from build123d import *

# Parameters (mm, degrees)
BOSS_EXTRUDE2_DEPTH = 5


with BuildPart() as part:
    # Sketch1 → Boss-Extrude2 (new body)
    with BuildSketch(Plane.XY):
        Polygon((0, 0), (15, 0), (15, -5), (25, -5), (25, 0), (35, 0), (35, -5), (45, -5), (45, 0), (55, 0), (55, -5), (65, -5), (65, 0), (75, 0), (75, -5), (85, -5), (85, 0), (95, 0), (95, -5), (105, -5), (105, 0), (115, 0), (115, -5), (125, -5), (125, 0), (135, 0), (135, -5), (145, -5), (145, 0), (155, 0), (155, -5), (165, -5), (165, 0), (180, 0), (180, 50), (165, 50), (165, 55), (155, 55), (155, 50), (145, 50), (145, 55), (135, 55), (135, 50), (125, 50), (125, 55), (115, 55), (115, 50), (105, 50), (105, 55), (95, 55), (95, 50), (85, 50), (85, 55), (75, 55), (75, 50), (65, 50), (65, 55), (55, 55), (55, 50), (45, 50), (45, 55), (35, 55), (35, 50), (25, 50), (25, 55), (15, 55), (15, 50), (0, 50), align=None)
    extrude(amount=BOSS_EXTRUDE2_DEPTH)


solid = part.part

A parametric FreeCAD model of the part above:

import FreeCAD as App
import Part
import Sketcher
from FreeCAD import Vector

doc = App.newDocument("Part")
body = doc.addObject("PartDesign::Body", "Body")

sketch1 = doc.addObject("Sketcher::SketchObject", "Sketch")
body.addObject(sketch1)
sketch1.AttachmentSupport = (doc.XY_Plane, [""])
sketch1.MapMode = "FlatFace"
sketch1.addGeometry(Part.LineSegment(Vector(0, 0, 0), Vector(15, 0, 0)), False)
sketch1.addGeometry(Part.LineSegment(Vector(15, 0, 0), Vector(15, -5, 0)), False)
sketch1.addGeometry(Part.LineSegment(Vector(15, -5, 0), Vector(25, -5, 0)), False)
sketch1.addGeometry(Part.LineSegment(Vector(25, -5, 0), Vector(25, 0, 0)), False)
sketch1.addGeometry(Part.LineSegment(Vector(25, 0, 0), Vector(35, 0, 0)), False)
sketch1.addGeometry(Part.LineSegment(Vector(35, 0, 0), Vector(35, -5, 0)), False)
sketch1.addGeometry(Part.LineSegment(Vector(35, -5, 0), Vector(45, -5, 0)), False)
sketch1.addGeometry(Part.LineSegment(Vector(45, -5, 0), Vector(45, 0, 0)), False)
sketch1.addGeometry(Part.LineSegment(Vector(45, 0, 0), Vector(55, 0, 0)), False)
sketch1.addGeometry(Part.LineSegment(Vector(55, 0, 0), Vector(55, -5, 0)), False)
sketch1.addGeometry(Part.LineSegment(Vector(55, -5, 0), Vector(65, -5, 0)), False)
sketch1.addGeometry(Part.LineSegment(Vector(65, -5, 0), Vector(65, 0, 0)), False)
sketch1.addGeometry(Part.LineSegment(Vector(65, 0, 0), Vector(75, 0, 0)), False)
sketch1.addGeometry(Part.LineSegment(Vector(75, 0, 0), Vector(75, -5, 0)), False)
sketch1.addGeometry(Part.LineSegment(Vector(75, -5, 0), Vector(85, -5, 0)), False)
sketch1.addGeometry(Part.LineSegment(Vector(85, -5, 0), Vector(85, 0, 0)), False)
sketch1.addGeometry(Part.LineSegment(Vector(85, 0, 0), Vector(95, 0, 0)), False)
sketch1.addGeometry(Part.LineSegment(Vector(95, 0, 0), Vector(95, -5, 0)), False)
sketch1.addGeometry(Part.LineSegment(Vector(95, -5, 0), Vector(105, -5, 0)), False)
sketch1.addGeometry(Part.LineSegment(Vector(105, -5, 0), Vector(105, 0, 0)), False)
sketch1.addGeometry(Part.LineSegment(Vector(105, 0, 0), Vector(115, 0, 0)), False)
sketch1.addGeometry(Part.LineSegment(Vector(115, 0, 0), Vector(115, -5, 0)), False)
sketch1.addGeometry(Part.LineSegment(Vector(115, -5, 0), Vector(125, -5, 0)), False)
sketch1.addGeometry(Part.LineSegment(Vector(125, -5, 0), Vector(125, 0, 0)), False)
sketch1.addGeometry(Part.LineSegment(Vector(125, 0, 0), Vector(135, 0, 0)), False)
sketch1.addGeometry(Part.LineSegment(Vector(135, 0, 0), Vector(135, -5, 0)), False)
sketch1.addGeometry(Part.LineSegment(Vector(135, -5, 0), Vector(145, -5, 0)), False)
sketch1.addGeometry(Part.LineSegment(Vector(145, -5, 0), Vector(145, 0, 0)), False)
sketch1.addGeometry(Part.LineSegment(Vector(145, 0, 0), Vector(155, 0, 0)), False)
sketch1.addGeometry(Part.LineSegment(Vector(155, 0, 0), Vector(155, -5, 0)), False)
sketch1.addGeometry(Part.LineSegment(Vector(155, -5, 0), Vector(165, -5, 0)), False)
sketch1.addGeometry(Part.LineSegment(Vector(165, -5, 0), Vector(165, 0, 0)), False)
sketch1.addGeometry(Part.LineSegment(Vector(165, 0, 0), Vector(180, 0, 0)), False)
sketch1.addGeometry(Part.LineSegment(Vector(180, 0, 0), Vector(180, 50, 0)), False)
sketch1.addGeometry(Part.LineSegment(Vector(180, 50, 0), Vector(165, 50, 0)), False)
sketch1.addGeometry(Part.LineSegment(Vector(165, 50, 0), Vector(165, 55, 0)), False)
sketch1.addGeometry(Part.LineSegment(Vector(165, 55, 0), Vector(155, 55, 0)), False)
sketch1.addGeometry(Part.LineSegment(Vector(155, 55, 0), Vector(155, 50, 0)), False)
sketch1.addGeometry(Part.LineSegment(Vector(155, 50, 0), Vector(145, 50, 0)), False)
sketch1.addGeometry(Part.LineSegment(Vector(145, 50, 0), Vector(145, 55, 0)), False)
sketch1.addGeometry(Part.LineSegment(Vector(145, 55, 0), Vector(135, 55, 0)), False)
sketch1.addGeometry(Part.LineSegment(Vector(135, 55, 0), Vector(135, 50, 0)), False)
sketch1.addGeometry(Part.LineSegment(Vector(135, 50, 0), Vector(125, 50, 0)), False)
sketch1.addGeometry(Part.LineSegment(Vector(125, 50, 0), Vector(125, 55, 0)), False)
sketch1.addGeometry(Part.LineSegment(Vector(125, 55, 0), Vector(115, 55, 0)), False)
sketch1.addGeometry(Part.LineSegment(Vector(115, 55, 0), Vector(115, 50, 0)), False)
sketch1.addGeometry(Part.LineSegment(Vector(115, 50, 0), Vector(105, 50, 0)), False)
sketch1.addGeometry(Part.LineSegment(Vector(105, 50, 0), Vector(105, 55, 0)), False)
sketch1.addGeometry(Part.LineSegment(Vector(105, 55, 0), Vector(95, 55, 0)), False)
sketch1.addGeometry(Part.LineSegment(Vector(95, 55, 0), Vector(95, 50, 0)), False)
sketch1.addGeometry(Part.LineSegment(Vector(95, 50, 0), Vector(85, 50, 0)), False)
sketch1.addGeometry(Part.LineSegment(Vector(85, 50, 0), Vector(85, 55, 0)), False)
sketch1.addGeometry(Part.LineSegment(Vector(85, 55, 0), Vector(75, 55, 0)), False)
sketch1.addGeometry(Part.LineSegment(Vector(75, 55, 0), Vector(75, 50, 0)), False)
sketch1.addGeometry(Part.LineSegment(Vector(75, 50, 0), Vector(65, 50, 0)), False)
sketch1.addGeometry(Part.LineSegment(Vector(65, 50, 0), Vector(65, 55, 0)), False)
sketch1.addGeometry(Part.LineSegment(Vector(65, 55, 0), Vector(55, 55, 0)), False)
sketch1.addGeometry(Part.LineSegment(Vector(55, 55, 0), Vector(55, 50, 0)), False)
sketch1.addGeometry(Part.LineSegment(Vector(55, 50, 0), Vector(45, 50, 0)), False)
sketch1.addGeometry(Part.LineSegment(Vector(45, 50, 0), Vector(45, 55, 0)), False)
sketch1.addGeometry(Part.LineSegment(Vector(45, 55, 0), Vector(35, 55, 0)), False)
sketch1.addGeometry(Part.LineSegment(Vector(35, 55, 0), Vector(35, 50, 0)), False)
sketch1.addGeometry(Part.LineSegment(Vector(35, 50, 0), Vector(25, 50, 0)), False)
sketch1.addGeometry(Part.LineSegment(Vector(25, 50, 0), Vector(25, 55, 0)), False)
sketch1.addGeometry(Part.LineSegment(Vector(25, 55, 0), Vector(15, 55, 0)), False)
sketch1.addGeometry(Part.LineSegment(Vector(15, 55, 0), Vector(15, 50, 0)), False)
sketch1.addGeometry(Part.LineSegment(Vector(15, 50, 0), Vector(0, 50, 0)), False)
sketch1.addGeometry(Part.LineSegment(Vector(0, 50, 0), Vector(0, 0, 0)), False)
sketch1.addConstraint(Sketcher.Constraint("Coincident", 0, 2, 1, 1))
sketch1.addConstraint(Sketcher.Constraint("Coincident", 1, 2, 2, 1))
sketch1.addConstraint(Sketcher.Constraint("Coincident", 2, 2, 3, 1))
sketch1.addConstraint(Sketcher.Constraint("Coincident", 3, 2, 4, 1))
sketch1.addConstraint(Sketcher.Constraint("Coincident", 4, 2, 5, 1))
sketch1.addConstraint(Sketcher.Constraint("Coincident", 5, 2, 6, 1))
sketch1.addConstraint(Sketcher.Constraint("Coincident", 6, 2, 7, 1))
sketch1.addConstraint(Sketcher.Constraint("Coincident", 7, 2, 8, 1))
sketch1.addConstraint(Sketcher.Constraint("Coincident", 8, 2, 9, 1))
sketch1.addConstraint(Sketcher.Constraint("Coincident", 9, 2, 10, 1))
sketch1.addConstraint(Sketcher.Constraint("Coincident", 10, 2, 11, 1))
sketch1.addConstraint(Sketcher.Constraint("Coincident", 11, 2, 12, 1))
sketch1.addConstraint(Sketcher.Constraint("Coincident", 12, 2, 13, 1))
sketch1.addConstraint(Sketcher.Constraint("Coincident", 13, 2, 14, 1))
sketch1.addConstraint(Sketcher.Constraint("Coincident", 14, 2, 15, 1))
sketch1.addConstraint(Sketcher.Constraint("Coincident", 15, 2, 16, 1))
sketch1.addConstraint(Sketcher.Constraint("Coincident", 16, 2, 17, 1))
sketch1.addConstraint(Sketcher.Constraint("Coincident", 17, 2, 18, 1))
sketch1.addConstraint(Sketcher.Constraint("Coincident", 18, 2, 19, 1))
sketch1.addConstraint(Sketcher.Constraint("Coincident", 19, 2, 20, 1))
sketch1.addConstraint(Sketcher.Constraint("Coincident", 20, 2, 21, 1))
sketch1.addConstraint(Sketcher.Constraint("Coincident", 21, 2, 22, 1))
sketch1.addConstraint(Sketcher.Constraint("Coincident", 22, 2, 23, 1))
sketch1.addConstraint(Sketcher.Constraint("Coincident", 23, 2, 24, 1))
sketch1.addConstraint(Sketcher.Constraint("Coincident", 24, 2, 25, 1))
sketch1.addConstraint(Sketcher.Constraint("Coincident", 25, 2, 26, 1))
sketch1.addConstraint(Sketcher.Constraint("Coincident", 26, 2, 27, 1))
sketch1.addConstraint(Sketcher.Constraint("Coincident", 27, 2, 28, 1))
sketch1.addConstraint(Sketcher.Constraint("Coincident", 28, 2, 29, 1))
sketch1.addConstraint(Sketcher.Constraint("Coincident", 29, 2, 30, 1))
sketch1.addConstraint(Sketcher.Constraint("Coincident", 30, 2, 31, 1))
sketch1.addConstraint(Sketcher.Constraint("Coincident", 31, 2, 32, 1))
sketch1.addConstraint(Sketcher.Constraint("Coincident", 32, 2, 33, 1))
sketch1.addConstraint(Sketcher.Constraint("Coincident", 33, 2, 34, 1))
sketch1.addConstraint(Sketcher.Constraint("Coincident", 34, 2, 35, 1))
sketch1.addConstraint(Sketcher.Constraint("Coincident", 35, 2, 36, 1))
sketch1.addConstraint(Sketcher.Constraint("Coincident", 36, 2, 37, 1))
sketch1.addConstraint(Sketcher.Constraint("Coincident", 37, 2, 38, 1))
sketch1.addConstraint(Sketcher.Constraint("Coincident", 38, 2, 39, 1))
sketch1.addConstraint(Sketcher.Constraint("Coincident", 39, 2, 40, 1))
sketch1.addConstraint(Sketcher.Constraint("Coincident", 40, 2, 41, 1))
sketch1.addConstraint(Sketcher.Constraint("Coincident", 41, 2, 42, 1))
sketch1.addConstraint(Sketcher.Constraint("Coincident", 42, 2, 43, 1))
sketch1.addConstraint(Sketcher.Constraint("Coincident", 43, 2, 44, 1))
sketch1.addConstraint(Sketcher.Constraint("Coincident", 44, 2, 45, 1))
sketch1.addConstraint(Sketcher.Constraint("Coincident", 45, 2, 46, 1))
sketch1.addConstraint(Sketcher.Constraint("Coincident", 46, 2, 47, 1))
sketch1.addConstraint(Sketcher.Constraint("Coincident", 47, 2, 48, 1))
sketch1.addConstraint(Sketcher.Constraint("Coincident", 48, 2, 49, 1))
sketch1.addConstraint(Sketcher.Constraint("Coincident", 49, 2, 50, 1))
sketch1.addConstraint(Sketcher.Constraint("Coincident", 50, 2, 51, 1))
sketch1.addConstraint(Sketcher.Constraint("Coincident", 51, 2, 52, 1))
sketch1.addConstraint(Sketcher.Constraint("Coincident", 52, 2, 53, 1))
sketch1.addConstraint(Sketcher.Constraint("Coincident", 53, 2, 54, 1))
sketch1.addConstraint(Sketcher.Constraint("Coincident", 54, 2, 55, 1))
sketch1.addConstraint(Sketcher.Constraint("Coincident", 55, 2, 56, 1))
sketch1.addConstraint(Sketcher.Constraint("Coincident", 56, 2, 57, 1))
sketch1.addConstraint(Sketcher.Constraint("Coincident", 57, 2, 58, 1))
sketch1.addConstraint(Sketcher.Constraint("Coincident", 58, 2, 59, 1))
sketch1.addConstraint(Sketcher.Constraint("Coincident", 59, 2, 60, 1))
sketch1.addConstraint(Sketcher.Constraint("Coincident", 60, 2, 61, 1))
sketch1.addConstraint(Sketcher.Constraint("Coincident", 61, 2, 62, 1))
sketch1.addConstraint(Sketcher.Constraint("Coincident", 62, 2, 63, 1))
sketch1.addConstraint(Sketcher.Constraint("Coincident", 63, 2, 64, 1))
sketch1.addConstraint(Sketcher.Constraint("Coincident", 64, 2, 65, 1))
sketch1.addConstraint(Sketcher.Constraint("Coincident", 65, 2, 66, 1))
sketch1.addConstraint(Sketcher.Constraint("Coincident", 66, 2, 67, 1))
sketch1.addConstraint(Sketcher.Constraint("Coincident", 67, 2, 0, 1))
sketch1.addConstraint(Sketcher.Constraint("Horizontal", 0))
sketch1.addConstraint(Sketcher.Constraint("Vertical", 1))
sketch1.addConstraint(Sketcher.Constraint("Horizontal", 2))
sketch1.addConstraint(Sketcher.Constraint("Vertical", 3))
sketch1.addConstraint(Sketcher.Constraint("Horizontal", 4))
sketch1.addConstraint(Sketcher.Constraint("Vertical", 5))
sketch1.addConstraint(Sketcher.Constraint("Horizontal", 6))
sketch1.addConstraint(Sketcher.Constraint("Vertical", 7))
sketch1.addConstraint(Sketcher.Constraint("Horizontal", 8))
sketch1.addConstraint(Sketcher.Constraint("Vertical", 9))
sketch1.addConstraint(Sketcher.Constraint("Horizontal", 10))
sketch1.addConstraint(Sketcher.Constraint("Vertical", 11))
sketch1.addConstraint(Sketcher.Constraint("Horizontal", 12))
sketch1.addConstraint(Sketcher.Constraint("Vertical", 13))
sketch1.addConstraint(Sketcher.Constraint("Horizontal", 14))
sketch1.addConstraint(Sketcher.Constraint("Vertical", 15))
sketch1.addConstraint(Sketcher.Constraint("Horizontal", 16))
sketch1.addConstraint(Sketcher.Constraint("Vertical", 17))
sketch1.addConstraint(Sketcher.Constraint("Horizontal", 18))
sketch1.addConstraint(Sketcher.Constraint("Vertical", 19))
sketch1.addConstraint(Sketcher.Constraint("Horizontal", 20))
sketch1.addConstraint(Sketcher.Constraint("Vertical", 21))
sketch1.addConstraint(Sketcher.Constraint("Horizontal", 22))
sketch1.addConstraint(Sketcher.Constraint("Vertical", 23))
sketch1.addConstraint(Sketcher.Constraint("Horizontal", 24))
sketch1.addConstraint(Sketcher.Constraint("Vertical", 25))
sketch1.addConstraint(Sketcher.Constraint("Horizontal", 26))
sketch1.addConstraint(Sketcher.Constraint("Vertical", 27))
sketch1.addConstraint(Sketcher.Constraint("Horizontal", 28))
sketch1.addConstraint(Sketcher.Constraint("Vertical", 29))
sketch1.addConstraint(Sketcher.Constraint("Horizontal", 30))
sketch1.addConstraint(Sketcher.Constraint("Vertical", 31))
sketch1.addConstraint(Sketcher.Constraint("Horizontal", 32))
sketch1.addConstraint(Sketcher.Constraint("Vertical", 33))
sketch1.addConstraint(Sketcher.Constraint("Horizontal", 34))
sketch1.addConstraint(Sketcher.Constraint("Vertical", 35))
sketch1.addConstraint(Sketcher.Constraint("Horizontal", 36))
sketch1.addConstraint(Sketcher.Constraint("Vertical", 37))
sketch1.addConstraint(Sketcher.Constraint("Horizontal", 38))
sketch1.addConstraint(Sketcher.Constraint("Vertical", 39))
sketch1.addConstraint(Sketcher.Constraint("Horizontal", 40))
sketch1.addConstraint(Sketcher.Constraint("Vertical", 41))
sketch1.addConstraint(Sketcher.Constraint("Horizontal", 42))
sketch1.addConstraint(Sketcher.Constraint("Vertical", 43))
sketch1.addConstraint(Sketcher.Constraint("Horizontal", 44))
sketch1.addConstraint(Sketcher.Constraint("Vertical", 45))
sketch1.addConstraint(Sketcher.Constraint("Horizontal", 46))
sketch1.addConstraint(Sketcher.Constraint("Vertical", 47))
sketch1.addConstraint(Sketcher.Constraint("Horizontal", 48))
sketch1.addConstraint(Sketcher.Constraint("Vertical", 49))
sketch1.addConstraint(Sketcher.Constraint("Horizontal", 50))
sketch1.addConstraint(Sketcher.Constraint("Vertical", 51))
sketch1.addConstraint(Sketcher.Constraint("Horizontal", 52))
sketch1.addConstraint(Sketcher.Constraint("Vertical", 53))
sketch1.addConstraint(Sketcher.Constraint("Horizontal", 54))
sketch1.addConstraint(Sketcher.Constraint("Vertical", 55))
sketch1.addConstraint(Sketcher.Constraint("Horizontal", 56))
sketch1.addConstraint(Sketcher.Constraint("Vertical", 57))
sketch1.addConstraint(Sketcher.Constraint("Horizontal", 58))
sketch1.addConstraint(Sketcher.Constraint("Vertical", 59))
sketch1.addConstraint(Sketcher.Constraint("Horizontal", 60))
sketch1.addConstraint(Sketcher.Constraint("Vertical", 61))
sketch1.addConstraint(Sketcher.Constraint("Horizontal", 62))
sketch1.addConstraint(Sketcher.Constraint("Vertical", 63))
sketch1.addConstraint(Sketcher.Constraint("Horizontal", 64))
sketch1.addConstraint(Sketcher.Constraint("Vertical", 65))
sketch1.addConstraint(Sketcher.Constraint("Horizontal", 66))
sketch1.addConstraint(Sketcher.Constraint("Vertical", 67))
sketch1.addConstraint(Sketcher.Constraint("Coincident", 67, 2, -1, 1))
sketch1.addConstraint(Sketcher.Constraint("PointOnObject", 3, 2, -1))
sketch1.addConstraint(Sketcher.Constraint("PointOnObject", 7, 2, -1))
sketch1.addConstraint(Sketcher.Constraint("PointOnObject", 11, 2, -1))
sketch1.addConstraint(Sketcher.Constraint("PointOnObject", 15, 2, -1))
sketch1.addConstraint(Sketcher.Constraint("PointOnObject", 19, 2, -1))
sketch1.addConstraint(Sketcher.Constraint("PointOnObject", 23, 2, -1))
sketch1.addConstraint(Sketcher.Constraint("PointOnObject", 27, 2, -1))
sketch1.addConstraint(Sketcher.Constraint("PointOnObject", 31, 2, -1))
sketch1.addConstraint(Sketcher.Constraint("Horizontal", 2, 2, 5, 2))
sketch1.addConstraint(Sketcher.Constraint("Horizontal", 6, 2, 9, 2))
sketch1.addConstraint(Sketcher.Constraint("Horizontal", 10, 2, 13, 2))
sketch1.addConstraint(Sketcher.Constraint("Horizontal", 14, 2, 17, 2))
sketch1.addConstraint(Sketcher.Constraint("Horizontal", 18, 2, 21, 2))
sketch1.addConstraint(Sketcher.Constraint("Horizontal", 22, 2, 25, 2))
sketch1.addConstraint(Sketcher.Constraint("Horizontal", 26, 2, 29, 2))
sketch1.addConstraint(Sketcher.Constraint("Horizontal", 34, 2, 37, 2))
sketch1.addConstraint(Sketcher.Constraint("Horizontal", 36, 2, 39, 2))
sketch1.addConstraint(Sketcher.Constraint("Horizontal", 38, 2, 41, 2))
sketch1.addConstraint(Sketcher.Constraint("Horizontal", 40, 2, 43, 2))
sketch1.addConstraint(Sketcher.Constraint("Horizontal", 42, 2, 45, 2))
sketch1.addConstraint(Sketcher.Constraint("Horizontal", 44, 2, 47, 2))
sketch1.addConstraint(Sketcher.Constraint("Horizontal", 46, 2, 49, 2))
sketch1.addConstraint(Sketcher.Constraint("Horizontal", 48, 2, 51, 2))
sketch1.addConstraint(Sketcher.Constraint("Horizontal", 50, 2, 53, 2))
sketch1.addConstraint(Sketcher.Constraint("Horizontal", 52, 2, 55, 2))
sketch1.addConstraint(Sketcher.Constraint("Horizontal", 54, 2, 57, 2))
sketch1.addConstraint(Sketcher.Constraint("Horizontal", 56, 2, 59, 2))
sketch1.addConstraint(Sketcher.Constraint("Horizontal", 58, 2, 61, 2))
sketch1.addConstraint(Sketcher.Constraint("Horizontal", 60, 2, 63, 2))
sketch1.addConstraint(Sketcher.Constraint("Horizontal", 62, 2, 65, 2))
sketch1.addConstraint(Sketcher.Constraint("Vertical", 31, 2, 34, 2))
sketch1.addConstraint(Sketcher.Constraint("Vertical", 29, 2, 36, 2))
sketch1.addConstraint(Sketcher.Constraint("Vertical", 27, 2, 38, 2))
sketch1.addConstraint(Sketcher.Constraint("Vertical", 25, 2, 40, 2))
sketch1.addConstraint(Sketcher.Constraint("Vertical", 23, 2, 42, 2))
sketch1.addConstraint(Sketcher.Constraint("Vertical", 21, 2, 44, 2))
sketch1.addConstraint(Sketcher.Constraint("Vertical", 19, 2, 46, 2))
sketch1.addConstraint(Sketcher.Constraint("Vertical", 17, 2, 48, 2))
sketch1.addConstraint(Sketcher.Constraint("Vertical", 15, 2, 50, 2))
sketch1.addConstraint(Sketcher.Constraint("Vertical", 13, 2, 52, 2))
sketch1.addConstraint(Sketcher.Constraint("Vertical", 11, 2, 54, 2))
sketch1.addConstraint(Sketcher.Constraint("Vertical", 9, 2, 56, 2))
sketch1.addConstraint(Sketcher.Constraint("Vertical", 7, 2, 58, 2))
sketch1.addConstraint(Sketcher.Constraint("Vertical", 5, 2, 60, 2))
sketch1.addConstraint(Sketcher.Constraint("Vertical", 3, 2, 62, 2))
sketch1.addConstraint(Sketcher.Constraint("Vertical", 1, 2, 64, 2))
sketch1.addConstraint(Sketcher.Constraint("Equal", 2, 4))
sketch1.addConstraint(Sketcher.Constraint("Equal", 4, 6))
sketch1.addConstraint(Sketcher.Constraint("Equal", 6, 8))
sketch1.addConstraint(Sketcher.Constraint("Equal", 8, 10))
sketch1.addConstraint(Sketcher.Constraint("Equal", 10, 12))
sketch1.addConstraint(Sketcher.Constraint("Equal", 12, 14))
sketch1.addConstraint(Sketcher.Constraint("Equal", 14, 16))
sketch1.addConstraint(Sketcher.Constraint("Equal", 16, 18))
sketch1.addConstraint(Sketcher.Constraint("Equal", 18, 20))
sketch1.addConstraint(Sketcher.Constraint("Equal", 20, 22))
sketch1.addConstraint(Sketcher.Constraint("Equal", 22, 24))
sketch1.addConstraint(Sketcher.Constraint("Equal", 24, 26))
sketch1.addConstraint(Sketcher.Constraint("Equal", 26, 28))
sketch1.addConstraint(Sketcher.Constraint("Equal", 28, 30))
sketch1.addConstraint(Sketcher.Constraint("Equal", 0, 32))
sketch1.addConstraint(Sketcher.Constraint("Equal", 31, 35))
sketch1.addConstraint(Sketcher.Constraint("DistanceX", 0, 1, 0, 2, 15.0))
sketch1.addConstraint(Sketcher.Constraint("DistanceX", 2, 1, 2, 2, 10.0))
sketch1.addConstraint(Sketcher.Constraint("DistanceY", 1, 2, 1, 1, 5.0))
sketch1.addConstraint(Sketcher.Constraint("DistanceY", 33, 1, 33, 2, 50.0))
pad1 = doc.addObject("PartDesign::Pad", "Pad")
body.addObject(pad1)
pad1.Profile = sketch1
pad1.Length = 5

doc.recompute()
